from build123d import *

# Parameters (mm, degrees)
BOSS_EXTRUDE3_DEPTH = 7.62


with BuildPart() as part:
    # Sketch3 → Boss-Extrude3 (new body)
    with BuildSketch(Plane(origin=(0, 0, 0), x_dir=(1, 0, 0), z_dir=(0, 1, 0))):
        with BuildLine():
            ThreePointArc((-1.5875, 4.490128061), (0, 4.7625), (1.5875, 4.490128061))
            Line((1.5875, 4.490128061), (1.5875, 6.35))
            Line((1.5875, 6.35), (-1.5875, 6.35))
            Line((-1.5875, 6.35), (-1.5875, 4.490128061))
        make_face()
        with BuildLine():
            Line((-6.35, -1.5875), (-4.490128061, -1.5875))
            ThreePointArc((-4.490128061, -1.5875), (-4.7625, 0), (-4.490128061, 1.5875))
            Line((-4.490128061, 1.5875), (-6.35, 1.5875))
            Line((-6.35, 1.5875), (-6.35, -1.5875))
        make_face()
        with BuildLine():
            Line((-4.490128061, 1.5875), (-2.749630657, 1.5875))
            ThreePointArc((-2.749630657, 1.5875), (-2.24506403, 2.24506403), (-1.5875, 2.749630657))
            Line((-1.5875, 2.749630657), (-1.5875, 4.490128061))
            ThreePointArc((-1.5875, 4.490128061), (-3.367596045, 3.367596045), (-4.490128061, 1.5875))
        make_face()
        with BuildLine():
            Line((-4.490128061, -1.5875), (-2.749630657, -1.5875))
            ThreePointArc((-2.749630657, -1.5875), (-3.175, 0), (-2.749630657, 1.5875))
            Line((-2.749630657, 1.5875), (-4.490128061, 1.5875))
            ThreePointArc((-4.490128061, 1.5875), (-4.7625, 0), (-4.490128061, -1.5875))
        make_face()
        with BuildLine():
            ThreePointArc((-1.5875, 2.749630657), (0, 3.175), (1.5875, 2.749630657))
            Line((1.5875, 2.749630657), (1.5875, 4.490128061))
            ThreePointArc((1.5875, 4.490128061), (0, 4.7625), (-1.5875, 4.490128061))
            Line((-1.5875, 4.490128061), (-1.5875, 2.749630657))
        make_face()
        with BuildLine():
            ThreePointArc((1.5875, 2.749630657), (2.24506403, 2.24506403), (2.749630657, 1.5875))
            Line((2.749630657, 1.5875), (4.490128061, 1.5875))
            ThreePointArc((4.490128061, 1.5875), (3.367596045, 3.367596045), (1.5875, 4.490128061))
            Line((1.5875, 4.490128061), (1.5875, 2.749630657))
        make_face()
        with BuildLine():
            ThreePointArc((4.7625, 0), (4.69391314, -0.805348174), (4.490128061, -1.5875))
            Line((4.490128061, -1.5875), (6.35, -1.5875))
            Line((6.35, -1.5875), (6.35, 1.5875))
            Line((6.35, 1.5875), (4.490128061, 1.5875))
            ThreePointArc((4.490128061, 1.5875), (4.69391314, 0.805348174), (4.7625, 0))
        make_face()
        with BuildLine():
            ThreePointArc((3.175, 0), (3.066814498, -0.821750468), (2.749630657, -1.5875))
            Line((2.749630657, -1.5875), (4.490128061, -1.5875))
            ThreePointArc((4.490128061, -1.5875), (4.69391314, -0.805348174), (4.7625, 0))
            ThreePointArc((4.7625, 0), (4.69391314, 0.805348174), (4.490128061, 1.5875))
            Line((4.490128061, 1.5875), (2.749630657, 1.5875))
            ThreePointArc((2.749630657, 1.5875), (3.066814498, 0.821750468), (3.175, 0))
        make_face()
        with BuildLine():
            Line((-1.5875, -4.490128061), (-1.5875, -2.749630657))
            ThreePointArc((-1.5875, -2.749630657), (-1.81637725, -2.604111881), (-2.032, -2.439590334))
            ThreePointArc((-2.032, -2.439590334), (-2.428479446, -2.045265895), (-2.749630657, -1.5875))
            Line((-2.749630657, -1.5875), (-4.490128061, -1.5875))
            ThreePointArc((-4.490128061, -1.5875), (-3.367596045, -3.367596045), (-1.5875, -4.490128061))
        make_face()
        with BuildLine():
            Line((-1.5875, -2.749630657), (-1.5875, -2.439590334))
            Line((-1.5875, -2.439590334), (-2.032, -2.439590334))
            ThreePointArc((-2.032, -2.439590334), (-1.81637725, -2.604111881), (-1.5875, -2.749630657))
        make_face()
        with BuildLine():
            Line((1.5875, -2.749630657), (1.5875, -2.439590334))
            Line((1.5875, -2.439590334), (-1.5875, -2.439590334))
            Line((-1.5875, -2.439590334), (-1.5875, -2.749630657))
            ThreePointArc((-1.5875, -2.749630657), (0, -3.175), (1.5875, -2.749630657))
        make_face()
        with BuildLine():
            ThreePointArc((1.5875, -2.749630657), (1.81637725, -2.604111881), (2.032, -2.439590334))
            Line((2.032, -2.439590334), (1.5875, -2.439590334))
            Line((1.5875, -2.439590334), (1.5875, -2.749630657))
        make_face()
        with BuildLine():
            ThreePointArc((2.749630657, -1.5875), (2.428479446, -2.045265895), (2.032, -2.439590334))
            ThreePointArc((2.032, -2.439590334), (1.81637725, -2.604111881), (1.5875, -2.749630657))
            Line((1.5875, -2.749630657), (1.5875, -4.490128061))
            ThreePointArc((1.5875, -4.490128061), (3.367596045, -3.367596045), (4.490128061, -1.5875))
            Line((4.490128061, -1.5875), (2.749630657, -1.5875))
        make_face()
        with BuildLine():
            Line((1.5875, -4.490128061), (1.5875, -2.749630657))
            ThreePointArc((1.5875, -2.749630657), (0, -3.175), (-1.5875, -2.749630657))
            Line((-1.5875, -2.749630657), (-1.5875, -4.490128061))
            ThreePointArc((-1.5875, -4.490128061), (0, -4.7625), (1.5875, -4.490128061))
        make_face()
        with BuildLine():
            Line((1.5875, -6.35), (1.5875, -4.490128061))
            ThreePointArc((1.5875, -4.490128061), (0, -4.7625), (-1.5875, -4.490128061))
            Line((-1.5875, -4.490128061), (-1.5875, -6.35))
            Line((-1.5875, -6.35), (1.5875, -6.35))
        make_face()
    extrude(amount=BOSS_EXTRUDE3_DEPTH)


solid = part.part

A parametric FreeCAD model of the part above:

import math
import FreeCAD as App
import Part
import Sketcher
from FreeCAD import Vector
Q = App.Units.Quantity

doc = App.newDocument("Part")
body = doc.addObject("PartDesign::Body", "Body")

sketch1 = body.newObject("Sketcher::SketchObject", "Sketch")
sketch1.AttachmentSupport = (doc.getObject("XZ_Plane"), [""])
sketch1.MapMode = "FlatFace"
sketch1.addGeometry(Part.LineSegment(Vector(1.5875, -6.35, 0), Vector(-1.5875, -6.35, 0)), False)
sketch1.addGeometry(Part.LineSegment(Vector(-1.5875, -6.35, 0), Vector(-1.5875, -4.490128, 0)), False)
sketch1.addGeometry(Part.ArcOfCircle(Part.Circle(Vector(0, 0, 0), Vector(0, 0, 1), 4.7625), math.radians(-160.528779), math.radians(-109.471221)), False)
sketch1.addGeometry(Part.LineSegment(Vector(-4.490128, -1.5875, 0), Vector(-6.35, -1.5875, 0)), False)
sketch1.addGeometry(Part.LineSegment(Vector(-6.35, -1.5875, 0), Vector(-6.35, 1.5875, 0)), False)
sketch1.addGeometry(Part.LineSegment(Vector(-6.35, 1.5875, 0), Vector(-4.490128, 1.5875, 0)), False)
sketch1.addGeometry(Part.ArcOfCircle(Part.Circle(Vector(0, 0, 0), Vector(0, 0, 1), 4.7625), math.radians(109.471221), math.radians(160.528779)), False)
sketch1.addGeometry(Part.LineSegment(Vector(-1.5875, 4.490128, 0), Vector(-1.5875, 6.35, 0)), False)
sketch1.addGeometry(Part.LineSegment(Vector(-1.5875, 6.35, 0), Vector(1.5875, 6.35, 0)), False)
sketch1.addGeometry(Part.LineSegment(Vector(1.5875, 6.35, 0), Vector(1.5875, 4.490128, 0)), False)
sketch1.addGeometry(Part.ArcOfCircle(Part.Circle(Vector(0, 0, 0), Vector(0, 0, 1), 4.7625), math.radians(19.471221), math.radians(70.528779)), False)
sketch1.addGeometry(Part.LineSegment(Vector(4.490128, 1.5875, 0), Vector(6.35, 1.5875, 0)), False)
sketch1.addGeometry(Part.LineSegment(Vector(6.35, 1.5875, 0), Vector(6.35, -1.5875, 0)), False)
sketch1.addGeometry(Part.LineSegment(Vector(6.35, -1.5875, 0), Vector(4.490128, -1.5875, 0)), False)
sketch1.addGeometry(Part.ArcOfCircle(Part.Circle(Vector(0, 0, 0), Vector(0, 0, 1), 4.7625), math.radians(-70.528779), math.radians(-19.471221)), False)
sketch1.addGeometry(Part.LineSegment(Vector(1.5875, -4.490128, 0), Vector(1.5875, -6.35, 0)), False)
sketch1.addGeometry(Part.LineSegment(Vector(2.032, 2.43959, 0), Vector(-2.032, 2.43959, 0)), False)
sketch1.addGeometry(Part.ArcOfCircle(Part.Circle(Vector(0, 0, 0), Vector(0, 0, 1), 3.175), math.radians(129.791819), math.radians(150)), False)
sketch1.addGeometry(Part.ArcOfCircle(Part.Circle(Vector(0, 0, 0), Vector(0, 0, 1), 3.175), math.radians(150), math.radians(210)), False)
sketch1.addGeometry(Part.ArcOfCircle(Part.Circle(Vector(0, 0, 0), Vector(0, 0, 1), 3.175), math.radians(-150), math.radians(-120)), False)
sketch1.addGeometry(Part.ArcOfCircle(Part.Circle(Vector(0, 0, 0), Vector(0, 0, 1), 3.175), math.radians(-120), math.radians(-60)), False)
sketch1.addGeometry(Part.ArcOfCircle(Part.Circle(Vector(0, 0, 0), Vector(0, 0, 1), 3.175), math.radians(-60), math.radians(-30)), False)
sketch1.addGeometry(Part.ArcOfCircle(Part.Circle(Vector(0, 0, 0), Vector(0, 0, 1), 3.175), math.radians(-30), math.radians(0)), False)
sketch1.addGeometry(Part.ArcOfCircle(Part.Circle(Vector(0, 0, 0), Vector(0, 0, 1), 3.175), math.radians(0), math.radians(30)), False)
sketch1.addGeometry(Part.ArcOfCircle(Part.Circle(Vector(0, 0, 0), Vector(0, 0, 1), 3.175), math.radians(30), math.radians(50.208181)), False)
sketch1.addConstraint(Sketcher.Constraint("Coincident", 0, 2, 1, 1))
sketch1.addConstraint(Sketcher.Constraint("Coincident", 1, 2, 2, 2))
sketch1.addConstraint(Sketcher.Constraint("Coincident", 2, 1, 3, 1))
sketch1.addConstraint(Sketcher.Constraint("Coincident", 3, 2, 4, 1))
sketch1.addConstraint(Sketcher.Constraint("Coincident", 4, 2, 5, 1))
sketch1.addConstraint(Sketcher.Constraint("Coincident", 5, 2, 6, 2))
sketch1.addConstraint(Sketcher.Constraint("Coincident", 6, 1, 7, 1))
sketch1.addConstraint(Sketcher.Constraint("Coincident", 7, 2, 8, 1))
sketch1.addConstraint(Sketcher.Constraint("Coincident", 8, 2, 9, 1))
sketch1.addConstraint(Sketcher.Constraint("Coincident", 9, 2, 10, 2))
sketch1.addConstraint(Sketcher.Constraint("Coincident", 10, 1, 11, 1))
sketch1.addConstraint(Sketcher.Constraint("Coincident", 11, 2, 12, 1))
sketch1.addConstraint(Sketcher.Constraint("Coincident", 12, 2, 13, 1))
sketch1.addConstraint(Sketcher.Constraint("Coincident", 13, 2, 14, 2))
sketch1.addConstraint(Sketcher.Constraint("Coincident", 14, 1, 15, 1))
sketch1.addConstraint(Sketcher.Constraint("Coincident", 15, 2, 0, 1))
sketch1.addConstraint(Sketcher.Constraint("Coincident", 16, 2, 17, 1))
sketch1.addConstraint(Sketcher.Constraint("Tangent", 17, 2, 18, 1))
sketch1.addConstraint(Sketcher.Constraint("Tangent", 18, 2, 19, 1))
sketch1.addConstraint(Sketcher.Constraint("Tangent", 19, 2, 20, 1))
sketch1.addConstraint(Sketcher.Constraint("Tangent", 20, 2, 21, 1))
sketch1.addConstraint(Sketcher.Constraint("Tangent", 21, 2, 22, 1))
sketch1.addConstraint(Sketcher.Constraint("Tangent", 22, 2, 23, 1))
sketch1.addConstraint(Sketcher.Constraint("Tangent", 23, 2, 24, 1))
sketch1.addConstraint(Sketcher.Constraint("Coincident", 24, 2, 16, 1))
sketch1.addConstraint(Sketcher.Constraint("Horizontal", 0))
sketch1.addConstraint(Sketcher.Constraint("Vertical", 1))
sketch1.addConstraint(Sketcher.Constraint("Horizontal", 3))
sketch1.addConstraint(Sketcher.Constraint("Vertical", 4))
sketch1.addConstraint(Sketcher.Constraint("Horizontal", 5))
sketch1.addConstraint(Sketcher.Constraint("Vertical", 7))
sketch1.addConstraint(Sketcher.Constraint("Horizontal", 8))
sketch1.addConstraint(Sketcher.Constraint("Vertical", 9))
sketch1.addConstraint(Sketcher.Constraint("Horizontal", 11))
sketch1.addConstraint(Sketcher.Constraint("Vertical", 12))
sketch1.addConstraint(Sketcher.Constraint("Horizontal", 13))
sketch1.addConstraint(Sketcher.Constraint("Vertical", 15))
sketch1.addConstraint(Sketcher.Constraint("Horizontal", 16))
sketch1.addConstraint(Sketcher.Constraint("Coincident", 2, 3, -1, 1))
sketch1.addConstraint(Sketcher.Constraint("Coincident", 6, 3, -1, 1))
sketch1.addConstraint(Sketcher.Constraint("Coincident", 10, 3, -1, 1))
sketch1.addConstraint(Sketcher.Constraint("Coincident", 14, 3, -1, 1))
sketch1.addConstraint(Sketcher.Constraint("Coincident", 17, 3, -1, 1))
sketch1.addConstraint(Sketcher.Constraint("Coincident", 19, 3, -1, 1))
sketch1.addConstraint(Sketcher.Constraint("Coincident", 21, 3, -1, 1))
sketch1.addConstraint(Sketcher.Constraint("Coincident", 23, 3, -1, 1))
sketch1.addConstraint(Sketcher.Constraint("Equal", 2, 6))
sketch1.addConstraint(Sketcher.Constraint("Equal", 6, 10))
sketch1.addConstraint(Sketcher.Constraint("Equal", 10, 14))
sketch1.addConstraint(Sketcher.Constraint("Equal", 23, 24))
sketch1.addConstraint(Sketcher.Constraint("Symmetric", 0, 2, 8, 2, -1, 1))
sketch1.addConstraint(Sketcher.Constraint("Symmetric", 3, 2, 11, 2, -1, 1))
sketch1.addConstraint(Sketcher.Constraint("PointOnObject", 22, 2, -1))
sketch1.addConstraint(Sketcher.Constraint("Horizontal", 6, 1, 9, 2))
sketch1.addConstraint(Sketcher.Constraint("Horizontal", 5, 2, 10, 1))
sketch1.addConstraint(Sketcher.Constraint("Horizontal", 3, 2, 12, 2))
sketch1.addConstraint(Sketcher.Constraint("Horizontal", 1, 2, 14, 1))
sketch1.addConstraint(Sketcher.Constraint("Horizontal", 11, 2, 17, 2))
sketch1.addConstraint(Sketcher.Constraint("Horizontal", 13, 2, 18, 2))
sketch1.addConstraint(Sketcher.Constraint("Horizontal", 19, 2, 20, 2))
sketch1.addConstraint(Sketcher.Constraint("Horizontal", 18, 2, 21, 2))
sketch1.addConstraint(Sketcher.Constraint("Horizontal", 17, 2, 23, 2))
sketch1.addConstraint(Sketcher.Constraint("Vertical", 7, 2, 19, 2))
sketch1.addConstraint(Sketcher.Constraint("Equal", 13, 1))
sketch1.addConstraint(Sketcher.Constraint("Equal", 8, 4))
sketch1.addConstraint(Sketcher.Constraint("Radius", 2, Q("0.1875 in")))
sketch1.addConstraint(Sketcher.Constraint("Radius", 17, Q("0.125 in")))
sketch1.addConstraint(Sketcher.Constraint("DistanceX", 16, 2, 16, 1, Q("0.16 in")))
sketch1.addConstraint(Sketcher.Constraint("DistanceX", 0, 2, 0, 1, Q("0.125 in")))
sketch1.addConstraint(Sketcher.Constraint("DistanceY", 0, 2, -1, 1, Q("0.25 in")))
pad1 = body.newObject("PartDesign::Pad", "Pad")
pad1.Profile = sketch1
pad1.Length = Q("0.3 in")
pad1.Reversed = True

doc.recompute()
